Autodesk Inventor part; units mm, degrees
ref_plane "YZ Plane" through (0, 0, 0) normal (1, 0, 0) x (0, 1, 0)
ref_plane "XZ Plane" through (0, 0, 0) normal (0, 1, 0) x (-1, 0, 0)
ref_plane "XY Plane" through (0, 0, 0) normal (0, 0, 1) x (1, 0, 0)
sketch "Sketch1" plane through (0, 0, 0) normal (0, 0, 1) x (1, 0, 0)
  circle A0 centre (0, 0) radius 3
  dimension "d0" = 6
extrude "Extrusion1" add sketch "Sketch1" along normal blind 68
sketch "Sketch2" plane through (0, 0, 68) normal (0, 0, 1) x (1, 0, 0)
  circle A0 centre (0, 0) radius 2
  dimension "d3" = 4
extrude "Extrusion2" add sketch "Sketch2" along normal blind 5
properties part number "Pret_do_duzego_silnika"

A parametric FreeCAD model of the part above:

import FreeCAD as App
import Part
import Sketcher
Q = App.Units.Quantity

doc = App.newDocument("Part")
body = doc.addObject("PartDesign::Body", "Body")

# Sketch on XY plane
sketch1 = body.newObject("Sketcher::SketchObject", "Sketch")
sketch1.AttachmentSupport = (doc.getObject("XY_Plane"), [""])
sketch1.MapMode = "FlatFace"
sketch1.addGeometry(Part.Circle(App.Vector(0, 0, 0), App.Vector(0, 0, 1), 3), False)
sketch1.addConstraint([
    Sketcher.Constraint("Coincident", 0, 3, -1, 1),
    Sketcher.Constraint("Diameter", 0, Q("6 mm")),
])
pad1 = body.newObject("PartDesign::Pad", "Pad")
pad1.Profile = sketch1
pad1.Length = 68

# Sketch on XY plane
sketch2 = body.newObject("Sketcher::SketchObject", "Sketch001")
sketch2.AttachmentSupport = (doc.getObject("XY_Plane"), [""])
sketch2.MapMode = "FlatFace"
sketch2.AttachmentOffset = App.Placement(App.Vector(0, 0, 68), App.Rotation())
sketch2.addGeometry(Part.Circle(App.Vector(0, 0, 0), App.Vector(0, 0, 1), 2), False)
sketch2.addConstraint([
    Sketcher.Constraint("Coincident", 0, 3, -1, 1),
    Sketcher.Constraint("Diameter", 0, Q("4 mm")),
])
pad2 = body.newObject("PartDesign::Pad", "Pad001")
pad2.Profile = sketch2
pad2.Length = 5

doc.recompute()
